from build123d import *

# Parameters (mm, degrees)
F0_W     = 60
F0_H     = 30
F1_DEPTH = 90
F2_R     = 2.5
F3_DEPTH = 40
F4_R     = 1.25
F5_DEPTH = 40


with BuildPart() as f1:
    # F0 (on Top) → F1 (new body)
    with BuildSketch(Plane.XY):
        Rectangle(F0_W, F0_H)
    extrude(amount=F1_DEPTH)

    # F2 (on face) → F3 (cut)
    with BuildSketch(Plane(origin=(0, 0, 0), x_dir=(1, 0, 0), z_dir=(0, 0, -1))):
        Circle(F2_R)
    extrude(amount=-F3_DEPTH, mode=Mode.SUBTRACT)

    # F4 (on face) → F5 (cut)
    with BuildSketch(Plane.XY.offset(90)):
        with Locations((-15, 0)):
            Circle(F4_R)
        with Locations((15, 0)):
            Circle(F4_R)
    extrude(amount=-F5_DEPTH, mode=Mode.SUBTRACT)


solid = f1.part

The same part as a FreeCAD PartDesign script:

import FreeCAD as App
import Part
import Sketcher
from FreeCAD import Vector
Q = App.Units.Quantity

doc = App.newDocument("Part")
params = doc.addObject("Spreadsheet::Sheet", "Params")
for row, (alias, value) in enumerate([
    ("sketch1_width", "60 mm"),
    ("sketch1_height", "30 mm"),
    ("pad1_length", "90 mm"),
    ("sketch2_diameter", "5 mm"),
    ("pocket1_length", "40 mm"),
    ("sketch3_diameter", "2.5 mm"),
    ("pocket2_length", "40 mm"),
], start=1):
    params.set(f"A{row}", alias)
    params.set(f"B{row}", "=" + value)
    params.setAlias(f"B{row}", alias)

body = doc.addObject("PartDesign::Body", "Body")

# Sketch on XY plane
sketch1 = doc.addObject("Sketcher::SketchObject", "Sketch")
body.addObject(sketch1)
sketch1.AttachmentSupport = (doc.XY_Plane, [""])
sketch1.MapMode = "FlatFace"
sketch1.addGeometry([
    Part.LineSegment(Vector(-30, 15, 0), Vector(-30, -15, 0)),
    Part.LineSegment(Vector(-30, -15, 0), Vector(30, -15, 0)),
    Part.LineSegment(Vector(30, -15, 0), Vector(30, 15, 0)),
    Part.LineSegment(Vector(30, 15, 0), Vector(-30, 15, 0)),
], False)
sketch1.addConstraint([
    Sketcher.Constraint("Coincident", 0, 2, 1, 1),
    Sketcher.Constraint("Coincident", 1, 2, 2, 1),
    Sketcher.Constraint("Coincident", 2, 2, 3, 1),
    Sketcher.Constraint("Coincident", 3, 2, 0, 1),
    Sketcher.Constraint("Vertical", 0),
    Sketcher.Constraint("Horizontal", 1),
    Sketcher.Constraint("Vertical", 2),
    Sketcher.Constraint("Horizontal", 3),
    Sketcher.Constraint("Symmetric", 0, 2, 2, 2, -1, 1),
    Sketcher.Constraint("DistanceX", 1, 1, 1, 2, Q("60 mm")),
    Sketcher.Constraint("DistanceY", 0, 2, 0, 1, Q("30 mm")),
])
sketch1.setExpression("Constraints[9]", "Params.sketch1_width")
sketch1.setExpression("Constraints[10]", "Params.sketch1_height")
pad1 = doc.addObject("PartDesign::Pad", "Pad")
body.addObject(pad1)
pad1.Profile = sketch1
pad1.setExpression("Length", "Params.pad1_length")

# Sketch on XY plane
sketch2 = doc.addObject("Sketcher::SketchObject", "Sketch001")
body.addObject(sketch2)
sketch2.AttachmentSupport = (doc.XY_Plane, [""])
sketch2.MapMode = "FlatFace"
sketch2.addGeometry(Part.Circle(Vector(0, 0, 0), Vector(0, 0, 1), 2.5), False)
sketch2.addConstraint([
    Sketcher.Constraint("Coincident", 0, 3, -1, 1),
    Sketcher.Constraint("Diameter", 0, Q("5 mm")),
])
sketch2.setExpression("Constraints[1]", "Params.sketch2_diameter")
pocket1 = doc.addObject("PartDesign::Pocket", "Pocket")
body.addObject(pocket1)
pocket1.Profile = sketch2
pocket1.setExpression("Length", "Params.pocket1_length")
pocket1.Reversed = True

# Sketch on XY plane
sketch3 = doc.addObject("Sketcher::SketchObject", "Sketch002")
body.addObject(sketch3)
sketch3.AttachmentSupport = (doc.XY_Plane, [""])
sketch3.MapMode = "FlatFace"
sketch3.AttachmentOffset = App.Placement(Vector(0, 0, 90), App.Rotation())
sketch3.addGeometry([
    Part.Circle(Vector(-15, 0, 0), Vector(0, 0, 1), 1.2),
    Part.Circle(Vector(15, 0, 0), Vector(0, 0, 1), 1.2),
], False)
sketch3.addConstraint([
    Sketcher.Constraint("Equal", 0, 1),
    Sketcher.Constraint("Symmetric", 0, 3, 1, 3, -1, 1),
    Sketcher.Constraint("PointOnObject", 0, 3, -1),
    Sketcher.Constraint("Diameter", 0, Q("2.5 mm")),
    Sketcher.Constraint("DistanceX", 0, 3, -1, 1, Q("15 mm")),
])
sketch3.setExpression("Constraints[3]", "Params.sketch3_diameter")
pocket2 = doc.addObject("PartDesign::Pocket", "Pocket001")
body.addObject(pocket2)
pocket2.Profile = sketch3
pocket2.setExpression("Length", "Params.pocket2_length")

doc.recompute()
